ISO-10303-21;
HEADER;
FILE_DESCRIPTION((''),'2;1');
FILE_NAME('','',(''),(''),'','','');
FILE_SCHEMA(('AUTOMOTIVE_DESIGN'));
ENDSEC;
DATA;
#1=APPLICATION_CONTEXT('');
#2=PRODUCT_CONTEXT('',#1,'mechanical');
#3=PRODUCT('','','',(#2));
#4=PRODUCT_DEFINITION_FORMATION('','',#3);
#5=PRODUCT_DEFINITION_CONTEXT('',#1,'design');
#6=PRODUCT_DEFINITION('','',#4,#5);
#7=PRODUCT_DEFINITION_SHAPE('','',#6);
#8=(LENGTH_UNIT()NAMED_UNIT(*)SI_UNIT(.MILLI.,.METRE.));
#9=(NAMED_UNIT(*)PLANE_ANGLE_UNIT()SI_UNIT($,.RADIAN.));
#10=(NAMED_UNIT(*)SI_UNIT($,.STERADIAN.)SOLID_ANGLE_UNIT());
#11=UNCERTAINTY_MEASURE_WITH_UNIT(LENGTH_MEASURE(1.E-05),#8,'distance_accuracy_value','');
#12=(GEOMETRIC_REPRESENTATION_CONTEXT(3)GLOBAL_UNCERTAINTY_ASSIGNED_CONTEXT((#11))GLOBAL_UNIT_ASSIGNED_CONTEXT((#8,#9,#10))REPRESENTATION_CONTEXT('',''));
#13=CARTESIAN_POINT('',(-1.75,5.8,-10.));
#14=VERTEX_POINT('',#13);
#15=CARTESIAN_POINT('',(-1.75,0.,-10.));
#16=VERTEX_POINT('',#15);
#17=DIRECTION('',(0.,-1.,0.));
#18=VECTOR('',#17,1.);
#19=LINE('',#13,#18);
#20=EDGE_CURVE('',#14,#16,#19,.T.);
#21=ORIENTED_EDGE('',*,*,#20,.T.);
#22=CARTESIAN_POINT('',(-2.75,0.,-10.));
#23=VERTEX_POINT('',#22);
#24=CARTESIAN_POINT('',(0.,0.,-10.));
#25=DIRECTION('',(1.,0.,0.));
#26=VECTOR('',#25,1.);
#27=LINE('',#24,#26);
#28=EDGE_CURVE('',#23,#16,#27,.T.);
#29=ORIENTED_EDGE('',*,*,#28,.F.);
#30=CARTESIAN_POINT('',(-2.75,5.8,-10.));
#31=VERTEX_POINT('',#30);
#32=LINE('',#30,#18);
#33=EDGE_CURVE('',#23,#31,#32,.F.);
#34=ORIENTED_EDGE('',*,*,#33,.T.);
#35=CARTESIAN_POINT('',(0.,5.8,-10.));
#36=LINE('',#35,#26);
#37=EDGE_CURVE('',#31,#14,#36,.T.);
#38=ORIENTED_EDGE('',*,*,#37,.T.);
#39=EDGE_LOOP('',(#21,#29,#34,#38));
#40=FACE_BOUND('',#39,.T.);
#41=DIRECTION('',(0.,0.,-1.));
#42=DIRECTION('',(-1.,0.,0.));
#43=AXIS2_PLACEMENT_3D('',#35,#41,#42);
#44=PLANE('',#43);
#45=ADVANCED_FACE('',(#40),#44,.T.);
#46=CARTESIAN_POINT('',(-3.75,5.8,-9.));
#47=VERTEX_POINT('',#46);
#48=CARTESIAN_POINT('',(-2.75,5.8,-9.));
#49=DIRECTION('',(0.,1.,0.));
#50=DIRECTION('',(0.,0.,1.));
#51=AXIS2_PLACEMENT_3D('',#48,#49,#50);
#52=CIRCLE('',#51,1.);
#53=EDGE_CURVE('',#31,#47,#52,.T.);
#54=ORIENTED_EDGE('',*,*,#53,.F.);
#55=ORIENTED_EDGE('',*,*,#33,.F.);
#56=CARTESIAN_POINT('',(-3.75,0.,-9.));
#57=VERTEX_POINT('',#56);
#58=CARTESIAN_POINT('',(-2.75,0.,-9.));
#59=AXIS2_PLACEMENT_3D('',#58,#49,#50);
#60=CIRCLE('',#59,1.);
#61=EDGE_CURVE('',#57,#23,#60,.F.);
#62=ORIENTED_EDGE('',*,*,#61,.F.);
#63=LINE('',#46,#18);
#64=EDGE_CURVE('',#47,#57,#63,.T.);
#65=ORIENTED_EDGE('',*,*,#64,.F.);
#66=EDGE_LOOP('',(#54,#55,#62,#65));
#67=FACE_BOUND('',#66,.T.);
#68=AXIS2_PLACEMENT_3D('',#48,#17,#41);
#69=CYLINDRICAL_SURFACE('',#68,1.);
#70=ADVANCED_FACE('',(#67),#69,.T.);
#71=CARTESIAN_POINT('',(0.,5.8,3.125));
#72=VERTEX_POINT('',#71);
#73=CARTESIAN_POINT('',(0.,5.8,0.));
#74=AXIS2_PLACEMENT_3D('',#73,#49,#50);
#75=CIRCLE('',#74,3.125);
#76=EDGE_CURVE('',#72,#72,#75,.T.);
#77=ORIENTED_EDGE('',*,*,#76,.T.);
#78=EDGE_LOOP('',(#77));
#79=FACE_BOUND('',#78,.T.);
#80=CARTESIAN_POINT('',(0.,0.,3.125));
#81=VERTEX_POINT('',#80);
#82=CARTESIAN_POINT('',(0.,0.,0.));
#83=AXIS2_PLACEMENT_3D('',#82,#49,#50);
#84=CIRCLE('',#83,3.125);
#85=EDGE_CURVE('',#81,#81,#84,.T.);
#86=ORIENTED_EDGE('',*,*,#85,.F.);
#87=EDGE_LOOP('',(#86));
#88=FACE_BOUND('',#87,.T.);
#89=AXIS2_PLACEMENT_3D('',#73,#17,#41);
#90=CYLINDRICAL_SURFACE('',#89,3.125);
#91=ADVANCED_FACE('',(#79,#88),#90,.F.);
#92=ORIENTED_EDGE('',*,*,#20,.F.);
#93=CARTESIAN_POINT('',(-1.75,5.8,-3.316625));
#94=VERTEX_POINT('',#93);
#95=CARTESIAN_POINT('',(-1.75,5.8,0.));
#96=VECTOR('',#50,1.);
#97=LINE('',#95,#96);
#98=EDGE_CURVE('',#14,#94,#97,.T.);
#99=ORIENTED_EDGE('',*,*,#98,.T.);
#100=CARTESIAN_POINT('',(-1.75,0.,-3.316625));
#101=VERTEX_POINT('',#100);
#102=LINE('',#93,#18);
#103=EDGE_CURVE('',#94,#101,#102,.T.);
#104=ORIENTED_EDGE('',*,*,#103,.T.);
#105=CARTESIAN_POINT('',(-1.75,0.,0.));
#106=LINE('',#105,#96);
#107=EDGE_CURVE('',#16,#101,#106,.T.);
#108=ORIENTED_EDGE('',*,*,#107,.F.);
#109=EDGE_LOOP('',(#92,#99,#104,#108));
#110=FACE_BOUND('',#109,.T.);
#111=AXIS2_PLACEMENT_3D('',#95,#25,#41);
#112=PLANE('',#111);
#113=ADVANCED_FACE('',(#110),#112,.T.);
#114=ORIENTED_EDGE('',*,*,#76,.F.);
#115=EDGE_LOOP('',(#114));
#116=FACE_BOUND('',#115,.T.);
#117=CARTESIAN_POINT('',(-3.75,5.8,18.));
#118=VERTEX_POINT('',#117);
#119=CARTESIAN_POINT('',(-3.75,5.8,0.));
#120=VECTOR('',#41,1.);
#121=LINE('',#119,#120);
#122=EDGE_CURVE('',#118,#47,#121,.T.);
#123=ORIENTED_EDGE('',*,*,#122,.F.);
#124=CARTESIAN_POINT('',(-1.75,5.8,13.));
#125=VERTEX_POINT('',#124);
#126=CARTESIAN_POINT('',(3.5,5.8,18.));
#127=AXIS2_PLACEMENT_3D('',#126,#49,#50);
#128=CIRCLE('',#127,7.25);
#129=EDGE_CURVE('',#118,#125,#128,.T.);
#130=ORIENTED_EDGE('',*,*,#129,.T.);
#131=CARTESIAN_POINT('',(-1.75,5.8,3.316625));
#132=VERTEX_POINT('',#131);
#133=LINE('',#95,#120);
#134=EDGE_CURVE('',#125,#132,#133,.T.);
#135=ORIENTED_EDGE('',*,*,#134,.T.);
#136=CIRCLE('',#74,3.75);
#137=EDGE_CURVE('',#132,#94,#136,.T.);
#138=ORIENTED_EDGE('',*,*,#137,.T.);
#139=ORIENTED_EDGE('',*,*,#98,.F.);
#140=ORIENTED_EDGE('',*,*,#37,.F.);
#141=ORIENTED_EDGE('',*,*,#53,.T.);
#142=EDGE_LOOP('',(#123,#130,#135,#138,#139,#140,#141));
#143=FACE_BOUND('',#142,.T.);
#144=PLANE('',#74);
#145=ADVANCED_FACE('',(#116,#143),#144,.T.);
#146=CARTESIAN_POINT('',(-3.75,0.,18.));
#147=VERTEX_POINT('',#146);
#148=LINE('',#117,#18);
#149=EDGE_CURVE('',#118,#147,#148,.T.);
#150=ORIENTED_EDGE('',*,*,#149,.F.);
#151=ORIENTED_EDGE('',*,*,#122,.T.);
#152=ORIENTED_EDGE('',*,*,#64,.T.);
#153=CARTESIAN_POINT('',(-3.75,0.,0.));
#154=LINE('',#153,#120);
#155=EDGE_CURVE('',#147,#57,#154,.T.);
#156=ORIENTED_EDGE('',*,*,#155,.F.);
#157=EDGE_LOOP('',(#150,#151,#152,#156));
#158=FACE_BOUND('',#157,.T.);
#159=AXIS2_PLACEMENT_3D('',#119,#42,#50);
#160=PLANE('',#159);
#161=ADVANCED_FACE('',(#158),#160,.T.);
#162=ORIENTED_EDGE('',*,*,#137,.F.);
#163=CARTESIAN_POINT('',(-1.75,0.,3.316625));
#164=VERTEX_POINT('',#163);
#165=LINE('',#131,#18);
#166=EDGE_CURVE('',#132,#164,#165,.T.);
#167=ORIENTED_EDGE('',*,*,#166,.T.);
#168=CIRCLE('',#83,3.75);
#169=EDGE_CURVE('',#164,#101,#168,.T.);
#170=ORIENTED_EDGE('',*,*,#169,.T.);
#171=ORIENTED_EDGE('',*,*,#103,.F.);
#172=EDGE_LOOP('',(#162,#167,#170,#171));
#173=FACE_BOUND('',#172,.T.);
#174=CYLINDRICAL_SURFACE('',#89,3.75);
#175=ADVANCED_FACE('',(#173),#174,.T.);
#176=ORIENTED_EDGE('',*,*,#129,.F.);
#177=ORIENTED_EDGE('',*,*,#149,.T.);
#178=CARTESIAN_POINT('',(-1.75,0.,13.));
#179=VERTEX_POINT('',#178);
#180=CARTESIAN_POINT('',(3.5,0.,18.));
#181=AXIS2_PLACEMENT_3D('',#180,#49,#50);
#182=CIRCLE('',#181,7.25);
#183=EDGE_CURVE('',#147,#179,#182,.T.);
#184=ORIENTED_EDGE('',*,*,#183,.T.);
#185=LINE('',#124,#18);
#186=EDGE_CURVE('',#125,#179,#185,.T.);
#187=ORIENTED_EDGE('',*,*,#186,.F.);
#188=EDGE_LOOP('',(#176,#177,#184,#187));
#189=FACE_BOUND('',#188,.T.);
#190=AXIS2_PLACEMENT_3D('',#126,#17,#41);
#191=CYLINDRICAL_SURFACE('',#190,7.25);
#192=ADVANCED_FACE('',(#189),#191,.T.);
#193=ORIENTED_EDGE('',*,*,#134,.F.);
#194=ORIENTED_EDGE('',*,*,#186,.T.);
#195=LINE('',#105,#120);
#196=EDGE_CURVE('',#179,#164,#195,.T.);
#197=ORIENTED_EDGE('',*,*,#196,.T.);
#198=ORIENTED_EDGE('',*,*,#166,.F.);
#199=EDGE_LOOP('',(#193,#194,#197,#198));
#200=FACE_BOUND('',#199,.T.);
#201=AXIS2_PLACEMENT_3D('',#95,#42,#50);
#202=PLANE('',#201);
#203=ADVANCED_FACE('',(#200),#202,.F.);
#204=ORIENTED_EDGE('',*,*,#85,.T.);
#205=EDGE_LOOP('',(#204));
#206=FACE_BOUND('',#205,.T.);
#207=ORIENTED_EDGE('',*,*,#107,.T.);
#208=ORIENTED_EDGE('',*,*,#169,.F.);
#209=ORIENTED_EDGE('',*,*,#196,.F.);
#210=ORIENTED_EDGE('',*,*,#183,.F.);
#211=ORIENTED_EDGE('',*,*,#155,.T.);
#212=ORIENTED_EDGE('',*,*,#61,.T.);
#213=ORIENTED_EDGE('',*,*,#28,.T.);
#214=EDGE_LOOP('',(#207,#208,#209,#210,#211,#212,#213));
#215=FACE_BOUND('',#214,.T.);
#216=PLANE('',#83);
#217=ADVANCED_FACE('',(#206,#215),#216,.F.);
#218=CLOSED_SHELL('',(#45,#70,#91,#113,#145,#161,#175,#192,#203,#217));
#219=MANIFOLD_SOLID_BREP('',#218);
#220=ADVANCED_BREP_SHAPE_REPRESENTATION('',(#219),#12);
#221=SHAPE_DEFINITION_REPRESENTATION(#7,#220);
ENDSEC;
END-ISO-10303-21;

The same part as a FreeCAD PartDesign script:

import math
import FreeCAD as App
import Part
import Sketcher


def edges_at(feature, points):
    """Names of the edges that pass closest to the given points."""
    edges = feature.Shape.Edges
    near = lambda p: min(range(len(edges)), key=lambda i: edges[i].distToShape(Part.Vertex(*p))[0])
    return sorted({f"Edge{near(p) + 1}" for p in points})

doc = App.newDocument("Part")
body = doc.addObject("PartDesign::Body", "Body")

# Sketch on XZ plane
sketch1 = body.newObject("Sketcher::SketchObject", "Sketch")
sketch1.AttachmentSupport = (doc.getObject("XZ_Plane"), [""])
sketch1.MapMode = "FlatFace"
sketch1.addGeometry([
    Part.LineSegment(App.Vector(-1.8, -10, 0), App.Vector(-3.8, -10, 0)),  # 0
    Part.LineSegment(App.Vector(-3.8, -10, 0), App.Vector(-3.8, 18, 0)),  # 1
    Part.ArcOfCircle(Part.Circle(App.Vector(3.5, 18, 0), App.Vector(0, 0, 1), 7.2), math.radians(-119), math.radians(180)),  # 2
    Part.ArcOfCircle(Part.Circle(App.Vector(3.5, 18, 0), App.Vector(0, 0, 1), 7.3), math.radians(-136.4), math.radians(-118.87)),  # 3
    Part.LineSegment(App.Vector(-1.8, 13, 0), App.Vector(-1.8, 3.3, 0)),  # 4
    Part.ArcOfCircle(Part.Circle(App.Vector(0, 0, 0), App.Vector(0, 0, 1), 3.8), math.radians(90), math.radians(118)),  # 5
    Part.ArcOfCircle(Part.Circle(App.Vector(0, 0, 0), App.Vector(0, 0, 1), 3.8), math.radians(-118), math.radians(90)),  # 6
    Part.LineSegment(App.Vector(-1.8, -3.3, 0), App.Vector(-1.8, -10, 0)),  # 7
    Part.Circle(App.Vector(0, 0, 0), App.Vector(0, 0, 1), 3.1),  # 8
], False)
sketch1.addConstraint([
    Sketcher.Constraint("Coincident", 0, 2, 1, 1),
    Sketcher.Constraint("Tangent", 1, 2, 2, 2),
    Sketcher.Constraint("Tangent", 2, 1, 3, 2),
    Sketcher.Constraint("Coincident", 3, 1, 4, 1),
    Sketcher.Constraint("Coincident", 4, 2, 5, 2),
    Sketcher.Constraint("Tangent", 5, 1, 6, 2),
    Sketcher.Constraint("Coincident", 6, 1, 7, 1),
    Sketcher.Constraint("Coincident", 7, 2, 0, 1),
    Sketcher.Constraint("Horizontal", 0),
    Sketcher.Constraint("Vertical", 1),
    Sketcher.Constraint("Vertical", 4),
    Sketcher.Constraint("Vertical", 7),
    Sketcher.Constraint("Coincident", 5, 3, -1, 1),
    Sketcher.Constraint("Coincident", 8, 3, -1, 1),
    Sketcher.Constraint("Equal", 2, 3),
    Sketcher.Constraint("Equal", 5, 6),
    Sketcher.Constraint("PointOnObject", 2, 1, -2),
    Sketcher.Constraint("PointOnObject", 5, 1, -2),
    Sketcher.Constraint("Vertical", 4, 2, 6, 1),
    Sketcher.Constraint("Diameter", 8, 6.25),
    Sketcher.Constraint("DistanceX", 0, 2, 0, 1, 2.0),
    Sketcher.Constraint("DistanceY", 1, 1, 1, 2, 28.0),
    Sketcher.Constraint("Radius", 2, 7.25),
    Sketcher.Constraint("Radius", 5, 3.75),
    Sketcher.Constraint("DistanceY", -1, 1, 2, 3, 18.0),
    Sketcher.Constraint("DistanceX", -1, 1, 2, 3, 3.5),
])
pad1 = body.newObject("PartDesign::Pad", "Pad")
pad1.Profile = sketch1
pad1.Length = 5.8
pad1.Reversed = True
doc.recompute()

fillet = body.newObject("PartDesign::Fillet", "Fillet")
fillet.Base = (pad1, edges_at(pad1, [(-3.75, 2.9, -10)]))
fillet.Radius = 1

doc.recompute()
